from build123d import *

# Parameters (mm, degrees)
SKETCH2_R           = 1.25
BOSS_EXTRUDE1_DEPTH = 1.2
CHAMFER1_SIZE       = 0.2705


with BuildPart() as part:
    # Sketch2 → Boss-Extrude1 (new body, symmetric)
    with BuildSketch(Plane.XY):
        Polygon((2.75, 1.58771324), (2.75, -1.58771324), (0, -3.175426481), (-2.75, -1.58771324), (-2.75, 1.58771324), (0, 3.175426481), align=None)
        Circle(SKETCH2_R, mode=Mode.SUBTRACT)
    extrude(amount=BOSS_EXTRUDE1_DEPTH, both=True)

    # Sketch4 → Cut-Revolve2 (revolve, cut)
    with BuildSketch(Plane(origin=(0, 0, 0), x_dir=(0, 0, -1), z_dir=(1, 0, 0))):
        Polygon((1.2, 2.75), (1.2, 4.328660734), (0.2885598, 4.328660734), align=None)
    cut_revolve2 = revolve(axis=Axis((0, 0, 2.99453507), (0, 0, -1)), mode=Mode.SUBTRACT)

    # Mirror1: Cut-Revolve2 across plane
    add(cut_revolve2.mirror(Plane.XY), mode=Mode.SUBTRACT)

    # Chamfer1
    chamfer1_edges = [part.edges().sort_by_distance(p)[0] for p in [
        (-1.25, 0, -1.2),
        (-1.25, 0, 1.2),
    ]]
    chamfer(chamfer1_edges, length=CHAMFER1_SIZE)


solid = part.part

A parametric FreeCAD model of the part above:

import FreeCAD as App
import Part
import Sketcher
from FreeCAD import Vector
Q = App.Units.Quantity


def edges_at(feature, points):
    """Names of the edges that pass closest to the given points."""
    edges = feature.Shape.Edges
    near = lambda p: min(range(len(edges)), key=lambda i: edges[i].distToShape(Part.Vertex(*p))[0])
    return sorted({f"Edge{near(p) + 1}" for p in points})

doc = App.newDocument("Part")
params = doc.addObject("Spreadsheet::Sheet", "Params")
for row, (alias, value) in enumerate([
    ("sketch1_diameter", "2.5 mm"),
    ("pad1_length", "2.4 mm"),
    ("groove_angle", "360 deg"),
    ("chamfer_size", "0.2705 mm"),
], start=1):
    params.set(f"A{row}", alias)
    params.set(f"B{row}", "=" + value)
    params.setAlias(f"B{row}", alias)

body = doc.addObject("PartDesign::Body", "Body")

sketch1 = body.newObject("Sketcher::SketchObject", "Sketch")
sketch1.AttachmentSupport = (doc.getObject("XY_Plane"), [""])
sketch1.MapMode = "FlatFace"
sketch1.addGeometry([
    Part.LineSegment(Vector(2.8, -1.6, 0), Vector(2.8, 1.6, 0)),
    Part.LineSegment(Vector(2.8, 1.6, 0), Vector(0, 3.2, 0)),
    Part.LineSegment(Vector(0, 3.2, 0), Vector(-2.8, 1.6, 0)),
    Part.LineSegment(Vector(-2.8, 1.6, 0), Vector(-2.8, -1.6, 0)),
    Part.LineSegment(Vector(-2.8, -1.6, 0), Vector(0, -3.2, 0)),
    Part.LineSegment(Vector(0, -3.2, 0), Vector(2.8, -1.6, 0)),
    Part.Circle(Vector(0, 0, 0), Vector(0, 0, 1), 1.2),
], False)
sketch1.addConstraint([
    Sketcher.Constraint("Coincident", 0, 2, 1, 1),
    Sketcher.Constraint("Coincident", 1, 2, 2, 1),
    Sketcher.Constraint("Coincident", 2, 2, 3, 1),
    Sketcher.Constraint("Coincident", 3, 2, 4, 1),
    Sketcher.Constraint("Coincident", 4, 2, 5, 1),
    Sketcher.Constraint("Coincident", 5, 2, 0, 1),
    Sketcher.Constraint("Vertical", 0),
    Sketcher.Constraint("Vertical", 3),
    Sketcher.Constraint("Coincident", 6, 3, -1, 1),
    Sketcher.Constraint("Symmetric", 0, 2, 3, 2, -1, 1),
    Sketcher.Constraint("Symmetric", 1, 2, 4, 2, -1, 1),
    Sketcher.Constraint("PointOnObject", 1, 2, -2),
    Sketcher.Constraint("Parallel", 2, 5),
    Sketcher.Constraint("Horizontal", 0, 2, 2, 2),
    Sketcher.Constraint("Diameter", 6, 2.5),
    Sketcher.Constraint("Angle", 1, Q("150 deg")),
    Sketcher.Constraint("DistanceX", 2, 2, 0, 2, 5.5),
    Sketcher.Constraint("DistanceY", 0, 1, 0, 2, 3.175426),
])
sketch1.setExpression("Constraints[14]", "Params.sketch1_diameter")
pad1 = body.newObject("PartDesign::Pad", "Pad")
pad1.Profile = sketch1
pad1.setExpression("Length", "Params.pad1_length")
pad1.Midplane = True

sketch2 = body.newObject("Sketcher::SketchObject", "Sketch001")
sketch2.AttachmentSupport = (doc.getObject("YZ_Plane"), [""])
sketch2.MapMode = "FlatFace"
sketch2.addGeometry([
    Part.LineSegment(Vector(2.8, -1.2, 0), Vector(4.3, -1.2, 0)),
    Part.LineSegment(Vector(4.3, -1.2, 0), Vector(4.3, -0.3, 0)),
    Part.LineSegment(Vector(4.3, -0.3, 0), Vector(2.8, -1.2, 0)),
], False)
sketch2.addConstraint([
    Sketcher.Constraint("Coincident", 0, 2, 1, 1),
    Sketcher.Constraint("Coincident", 1, 2, 2, 1),
    Sketcher.Constraint("Coincident", 2, 2, 0, 1),
    Sketcher.Constraint("Horizontal", 0),
    Sketcher.Constraint("Vertical", 1),
    Sketcher.Constraint("Angle", 2, Q("-150 deg")),
    Sketcher.Constraint("DistanceY", 0, 2, -1, 1, 1.2),
    Sketcher.Constraint("DistanceX", -1, 1, 2, 2, 2.75),
    Sketcher.Constraint("DistanceX", 0, 1, 0, 2, 1.578661),
])
groove = body.newObject("PartDesign::Groove", "Groove")
groove.Profile = sketch2
groove.ReferenceAxis = (sketch2, ["V_Axis"])
groove.setExpression("Angle", "Params.groove_angle")
doc.recompute()

mirrored = body.newObject("PartDesign::Mirrored", "Mirrored")
mirrored.Originals = [groove]
mirrored.MirrorPlane = (doc.getObject("XY_Plane"), [""])
body.Tip = mirrored
doc.recompute()

chamfer = body.newObject("PartDesign::Chamfer", "Chamfer")
chamfer.Base = (mirrored, edges_at(mirrored, [(-1.25, 0, -1.2), (-1.25, 0, 1.2)]))
chamfer.setExpression("Size", "Params.chamfer_size")

doc.recompute()
